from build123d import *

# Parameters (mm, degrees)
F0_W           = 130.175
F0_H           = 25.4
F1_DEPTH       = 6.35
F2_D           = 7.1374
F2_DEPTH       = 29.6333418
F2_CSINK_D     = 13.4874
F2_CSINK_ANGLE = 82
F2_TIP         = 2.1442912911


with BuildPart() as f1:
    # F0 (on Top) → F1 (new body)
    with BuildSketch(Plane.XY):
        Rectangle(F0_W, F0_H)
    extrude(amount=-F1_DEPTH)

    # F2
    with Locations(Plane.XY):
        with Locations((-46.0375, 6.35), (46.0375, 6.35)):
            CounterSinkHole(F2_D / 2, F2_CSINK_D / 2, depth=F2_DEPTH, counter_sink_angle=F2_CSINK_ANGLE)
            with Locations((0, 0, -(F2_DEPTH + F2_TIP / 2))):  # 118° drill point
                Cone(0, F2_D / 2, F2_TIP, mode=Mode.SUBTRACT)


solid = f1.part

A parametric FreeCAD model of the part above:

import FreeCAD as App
import Part
import Sketcher

V = App.Vector
Q = App.Units.Quantity

doc = App.newDocument("Part")
params = doc.addObject("Spreadsheet::Sheet", "Params")
for row, (alias, value) in enumerate([
    ("sketch1_height", "1 in"),
    ("sketch1_width", "5.125 in"),
    ("pad1_length", "0.25 in"),
    ("sketch2_diameter", "0.281 in"),
    ("hole_diameter", "0.281 in"),
    ("hole_depth", "29.633342 mm"),
    ("hole_csink_diameter", "0.531 in"),
], start=1):
    params.set(f"A{row}", alias)
    params.set(f"B{row}", "=" + value)
    params.setAlias(f"B{row}", alias)

body = doc.addObject("PartDesign::Body", "Body")

# Sketch on XY plane
sketch1 = doc.addObject("Sketcher::SketchObject", "Sketch")
body.addObject(sketch1)
sketch1.AttachmentSupport = (doc.XY_Plane, [""])
sketch1.MapMode = "FlatFace"
sketch1.addGeometry([
    Part.LineSegment(V(-65, 13, 0), V(-65, -13, 0)),
    Part.LineSegment(V(-65, -13, 0), V(65, -13, 0)),
    Part.LineSegment(V(65, -13, 0), V(65, 13, 0)),
    Part.LineSegment(V(65, 13, 0), V(-65, 13, 0)),
], False)
sketch1.addConstraint([
    Sketcher.Constraint("Coincident", 0, 2, 1, 1),
    Sketcher.Constraint("Coincident", 1, 2, 2, 1),
    Sketcher.Constraint("Coincident", 2, 2, 3, 1),
    Sketcher.Constraint("Coincident", 3, 2, 0, 1),
    Sketcher.Constraint("Vertical", 0),
    Sketcher.Constraint("Horizontal", 1),
    Sketcher.Constraint("Vertical", 2),
    Sketcher.Constraint("Horizontal", 3),
    Sketcher.Constraint("Symmetric", 0, 2, 2, 2, -1, 1),
    Sketcher.Constraint("DistanceY", 0, 2, 0, 1, Q("1 in")),
    Sketcher.Constraint("DistanceX", 1, 1, 1, 2, Q("5.125 in")),
])
sketch1.setExpression("Constraints[9]", "Params.sketch1_height")
sketch1.setExpression("Constraints[10]", "Params.sketch1_width")
pad1 = doc.addObject("PartDesign::Pad", "Pad")
body.addObject(pad1)
pad1.Profile = sketch1
pad1.setExpression("Length", "Params.pad1_length")
pad1.Reversed = True

# Sketch on XY plane
sketch2 = doc.addObject("Sketcher::SketchObject", "Sketch001")
body.addObject(sketch2)
sketch2.AttachmentSupport = (doc.XY_Plane, [""])
sketch2.MapMode = "FlatFace"
sketch2.addGeometry([
    Part.Circle(V(-46, 6.3, 0), V(0, 0, 1), 3.6),
    Part.Circle(V(46, 6.3, 0), V(0, 0, 1), 3.6),
], False)
sketch2.addConstraint([
    Sketcher.Constraint("Equal", 0, 1),
    Sketcher.Constraint("Symmetric", 0, 3, 1, 3, -2),
    Sketcher.Constraint("Diameter", 0, Q("0.281 in")),
    Sketcher.Constraint("DistanceY", -1, 1, 0, 3, Q("0.25 in")),
    Sketcher.Constraint("DistanceX", 0, 3, -1, 1, Q("1.8125 in")),
])
sketch2.setExpression("Constraints[2]", "Params.sketch2_diameter")
doc.recompute()
hole = doc.addObject("PartDesign::Hole", "Hole")
body.addObject(hole)
hole.Profile = sketch2
hole.ThreadType = "None"
hole.setExpression("Diameter", "Params.hole_diameter")
hole.DepthType = "Dimension"
hole.setExpression("Depth", "Params.hole_depth")
hole.DrillPoint = "Angled"
hole.DrillPointAngle = 118
hole.HoleCutType = "Countersink"
hole.setExpression("HoleCutDiameter", "Params.hole_csink_diameter")
hole.HoleCutCountersinkAngle = 82

doc.recompute()
